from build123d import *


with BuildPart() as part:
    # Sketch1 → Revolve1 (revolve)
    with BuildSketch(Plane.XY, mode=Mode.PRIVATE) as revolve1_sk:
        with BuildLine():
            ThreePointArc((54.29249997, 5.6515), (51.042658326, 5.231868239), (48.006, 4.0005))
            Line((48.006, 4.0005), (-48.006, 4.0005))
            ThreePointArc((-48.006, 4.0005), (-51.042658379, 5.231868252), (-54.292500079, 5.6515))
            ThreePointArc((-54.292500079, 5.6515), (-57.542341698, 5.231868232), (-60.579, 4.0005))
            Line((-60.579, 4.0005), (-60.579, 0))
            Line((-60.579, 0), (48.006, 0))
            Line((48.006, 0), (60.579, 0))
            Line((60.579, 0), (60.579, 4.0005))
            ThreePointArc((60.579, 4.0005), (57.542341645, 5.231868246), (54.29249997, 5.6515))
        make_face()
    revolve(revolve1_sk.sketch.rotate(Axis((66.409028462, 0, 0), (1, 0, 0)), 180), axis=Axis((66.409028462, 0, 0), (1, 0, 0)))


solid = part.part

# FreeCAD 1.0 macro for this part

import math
import FreeCAD as App
import Part
import Sketcher
from FreeCAD import Vector
Q = App.Units.Quantity

doc = App.newDocument("Part")
body = doc.addObject("PartDesign::Body", "Body")

sketch1 = body.newObject("Sketcher::SketchObject", "Sketch")
sketch1.AttachmentSupport = (doc.getObject("XY_Plane"), [""])
sketch1.MapMode = "FlatFace"
sketch1.addGeometry([
    Part.ArcOfCircle(Part.Circle(Vector(54.3, -7.1, 0), Vector(0, 0, 1), 12.8), math.radians(90), math.radians(119)),
    Part.LineSegment(Vector(48, 4, 0), Vector(-48, 4, 0)),
    Part.ArcOfCircle(Part.Circle(Vector(-54.3, -7.1, 0), Vector(0, 0, 1), 12.8), math.radians(61), math.radians(90)),
    Part.ArcOfCircle(Part.Circle(Vector(-54.3, -7.1, 0), Vector(0, 0, 1), 12.8), math.radians(90), math.radians(119)),
    Part.LineSegment(Vector(-60.6, 4, 0), Vector(-60.6, 0, 0)),
    Part.LineSegment(Vector(-60.6, 0, 0), Vector(60.6, 0, 0)),
    Part.LineSegment(Vector(60.6, 0, 0), Vector(60.6, 4, 0)),
    Part.ArcOfCircle(Part.Circle(Vector(54.3, -7.1, 0), Vector(0, 0, 1), 12.8), math.radians(61), math.radians(90)),
], False)
sketch1.addConstraint([
    Sketcher.Constraint("Coincident", 0, 2, 1, 1),
    Sketcher.Constraint("Coincident", 1, 2, 2, 1),
    Sketcher.Constraint("Tangent", 2, 2, 3, 1),
    Sketcher.Constraint("Coincident", 3, 2, 4, 1),
    Sketcher.Constraint("Coincident", 4, 2, 5, 1),
    Sketcher.Constraint("Coincident", 5, 2, 6, 1),
    Sketcher.Constraint("Coincident", 6, 2, 7, 1),
    Sketcher.Constraint("Tangent", 7, 2, 0, 1),
    Sketcher.Constraint("Horizontal", 1),
    Sketcher.Constraint("Vertical", 4),
    Sketcher.Constraint("Horizontal", 5),
    Sketcher.Constraint("Vertical", 6),
    Sketcher.Constraint("Equal", 0, 2),
    Sketcher.Constraint("Equal", 2, 3),
    Sketcher.Constraint("Equal", 3, 7),
    Sketcher.Constraint("Symmetric", 4, 2, 5, 2, -1, 1),
    Sketcher.Constraint("Symmetric", 0, 3, 2, 3, -2),
    Sketcher.Constraint("Horizontal", 1, 2, 3, 2),
    Sketcher.Constraint("Vertical", 3, 3, 2, 2),
    Sketcher.Constraint("Vertical", 0, 3, 7, 2),
    Sketcher.Constraint("DistanceX", 1, 2, 1, 1, Q("3.78 in")),
    Sketcher.Constraint("DistanceX", 5, 1, 5, 2, Q("4.77 in")),
    Sketcher.Constraint("DistanceY", 4, 2, 4, 1, Q("0.1575 in")),
    Sketcher.Constraint("Radius", 0, 12.794029),
])
revolution = body.newObject("PartDesign::Revolution", "Revolution")
revolution.Profile = sketch1
revolution.ReferenceAxis = (sketch1, ["H_Axis"])
revolution.Angle = 360

doc.recompute()
